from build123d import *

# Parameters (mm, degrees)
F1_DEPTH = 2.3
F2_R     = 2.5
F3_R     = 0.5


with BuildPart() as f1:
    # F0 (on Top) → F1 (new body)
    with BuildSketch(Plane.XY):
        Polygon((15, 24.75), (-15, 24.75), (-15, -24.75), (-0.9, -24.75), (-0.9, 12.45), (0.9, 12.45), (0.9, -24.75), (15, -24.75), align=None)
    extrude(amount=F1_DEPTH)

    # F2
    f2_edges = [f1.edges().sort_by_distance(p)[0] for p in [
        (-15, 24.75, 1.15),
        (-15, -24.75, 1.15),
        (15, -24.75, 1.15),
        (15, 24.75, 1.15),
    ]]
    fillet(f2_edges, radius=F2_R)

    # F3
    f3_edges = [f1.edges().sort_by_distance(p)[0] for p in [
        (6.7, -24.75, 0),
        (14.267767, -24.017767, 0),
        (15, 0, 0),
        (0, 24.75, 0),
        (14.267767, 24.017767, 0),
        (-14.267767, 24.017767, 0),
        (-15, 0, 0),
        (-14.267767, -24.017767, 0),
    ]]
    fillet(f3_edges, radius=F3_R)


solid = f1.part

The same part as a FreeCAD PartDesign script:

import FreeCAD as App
import Part
import Sketcher

V = App.Vector


def edges_at(feature, points):
    """Names of the edges that pass closest to the given points."""
    edges = feature.Shape.Edges
    near = lambda p: min(range(len(edges)), key=lambda i: edges[i].distToShape(Part.Vertex(*p))[0])
    return sorted({f"Edge{near(p) + 1}" for p in points})

doc = App.newDocument("Part")
params = doc.addObject("Spreadsheet::Sheet", "Params")
for row, (alias, value) in enumerate([
    ("sketch1_width", "30 mm"),
    ("sketch1_width2", "14.1 mm"),
    ("sketch1_height", "49.5 mm"),
    ("sketch1_height2", "37.2 mm"),
    ("pad1_length", "2.3 mm"),
    ("fillet_radius", "2.5 mm"),
    ("fillet2_radius", "0.5 mm"),
], start=1):
    params.set(f"A{row}", alias)
    params.set(f"B{row}", "=" + value)
    params.setAlias(f"B{row}", alias)

body = doc.addObject("PartDesign::Body", "Body")

# Sketch on XY plane
sketch1 = doc.addObject("Sketcher::SketchObject", "Sketch")
body.addObject(sketch1)
sketch1.AttachmentSupport = (doc.XY_Plane, [""])
sketch1.MapMode = "FlatFace"
sketch1.addGeometry(Part.LineSegment(V(15, 24.8, 0), V(-15, 24.8, 0)), False)
sketch1.addGeometry(Part.LineSegment(V(-15, 24.8, 0), V(-15, -24.8, 0)), False)
sketch1.addGeometry(Part.LineSegment(V(-15, -24.8, 0), V(-0.9, -24.8, 0)), False)
sketch1.addGeometry(Part.LineSegment(V(-0.9, -24.8, 0), V(-0.9, 12.4, 0)), False)
sketch1.addGeometry(Part.LineSegment(V(-0.9, 12.4, 0), V(0.9, 12.4, 0)), False)
sketch1.addGeometry(Part.LineSegment(V(0.9, 12.4, 0), V(0.9, -24.8, 0)), False)
sketch1.addGeometry(Part.LineSegment(V(0.9, -24.8, 0), V(15, -24.8, 0)), False)
sketch1.addGeometry(Part.LineSegment(V(15, -24.8, 0), V(15, 24.8, 0)), False)
sketch1.addConstraint(Sketcher.Constraint("Coincident", 0, 2, 1, 1))
sketch1.addConstraint(Sketcher.Constraint("Coincident", 1, 2, 2, 1))
sketch1.addConstraint(Sketcher.Constraint("Coincident", 2, 2, 3, 1))
sketch1.addConstraint(Sketcher.Constraint("Coincident", 3, 2, 4, 1))
sketch1.addConstraint(Sketcher.Constraint("Coincident", 4, 2, 5, 1))
sketch1.addConstraint(Sketcher.Constraint("Coincident", 5, 2, 6, 1))
sketch1.addConstraint(Sketcher.Constraint("Coincident", 6, 2, 7, 1))
sketch1.addConstraint(Sketcher.Constraint("Coincident", 7, 2, 0, 1))
sketch1.addConstraint(Sketcher.Constraint("Horizontal", 0))
sketch1.addConstraint(Sketcher.Constraint("Vertical", 1))
sketch1.addConstraint(Sketcher.Constraint("Horizontal", 2))
sketch1.addConstraint(Sketcher.Constraint("Vertical", 3))
sketch1.addConstraint(Sketcher.Constraint("Horizontal", 4))
sketch1.addConstraint(Sketcher.Constraint("Vertical", 5))
sketch1.addConstraint(Sketcher.Constraint("Horizontal", 6))
sketch1.addConstraint(Sketcher.Constraint("Vertical", 7))
sketch1.addConstraint(Sketcher.Constraint("Symmetric", 0, 2, 6, 2, -1, 1))
sketch1.addConstraint(Sketcher.Constraint("Symmetric", 2, 2, 5, 2, -2))
sketch1.addConstraint(Sketcher.Constraint("DistanceX", 0, 2, 0, 1, 30.0))
sketch1.addConstraint(Sketcher.Constraint("DistanceX", 2, 1, 2, 2, 14.1))
sketch1.addConstraint(Sketcher.Constraint("DistanceY", 1, 2, 1, 1, 49.5))
sketch1.addConstraint(Sketcher.Constraint("DistanceY", 3, 1, 3, 2, 37.2))
sketch1.setExpression("Constraints[18]", "Params.sketch1_width")
sketch1.setExpression("Constraints[19]", "Params.sketch1_width2")
sketch1.setExpression("Constraints[20]", "Params.sketch1_height")
sketch1.setExpression("Constraints[21]", "Params.sketch1_height2")
pad1 = doc.addObject("PartDesign::Pad", "Pad")
body.addObject(pad1)
pad1.Profile = sketch1
pad1.setExpression("Length", "Params.pad1_length")
doc.recompute()

fillet = doc.addObject("PartDesign::Fillet", "Fillet")
body.addObject(fillet)
fillet.Base = (pad1, edges_at(pad1, [
    (-15, 24.75, 1.15),
    (-15, -24.75, 1.15),
    (15, -24.75, 1.15),
    (15, 24.75, 1.15),
]))
fillet.setExpression("Radius", "Params.fillet_radius")
doc.recompute()

fillet2 = doc.addObject("PartDesign::Fillet", "Fillet001")
body.addObject(fillet2)
fillet2.Base = (fillet, edges_at(fillet, [
    (6.7, -24.75, 0),
    (14.268, -24.018, 0),
    (15, 0, 0),
    (0, 24.75, 0),
    (14.268, 24.018, 0),
    (-14.268, 24.018, 0),
    (-15, 0, 0),
    (-14.268, -24.018, 0),
]))
fillet2.setExpression("Radius", "Params.fillet2_radius")

doc.recompute()
